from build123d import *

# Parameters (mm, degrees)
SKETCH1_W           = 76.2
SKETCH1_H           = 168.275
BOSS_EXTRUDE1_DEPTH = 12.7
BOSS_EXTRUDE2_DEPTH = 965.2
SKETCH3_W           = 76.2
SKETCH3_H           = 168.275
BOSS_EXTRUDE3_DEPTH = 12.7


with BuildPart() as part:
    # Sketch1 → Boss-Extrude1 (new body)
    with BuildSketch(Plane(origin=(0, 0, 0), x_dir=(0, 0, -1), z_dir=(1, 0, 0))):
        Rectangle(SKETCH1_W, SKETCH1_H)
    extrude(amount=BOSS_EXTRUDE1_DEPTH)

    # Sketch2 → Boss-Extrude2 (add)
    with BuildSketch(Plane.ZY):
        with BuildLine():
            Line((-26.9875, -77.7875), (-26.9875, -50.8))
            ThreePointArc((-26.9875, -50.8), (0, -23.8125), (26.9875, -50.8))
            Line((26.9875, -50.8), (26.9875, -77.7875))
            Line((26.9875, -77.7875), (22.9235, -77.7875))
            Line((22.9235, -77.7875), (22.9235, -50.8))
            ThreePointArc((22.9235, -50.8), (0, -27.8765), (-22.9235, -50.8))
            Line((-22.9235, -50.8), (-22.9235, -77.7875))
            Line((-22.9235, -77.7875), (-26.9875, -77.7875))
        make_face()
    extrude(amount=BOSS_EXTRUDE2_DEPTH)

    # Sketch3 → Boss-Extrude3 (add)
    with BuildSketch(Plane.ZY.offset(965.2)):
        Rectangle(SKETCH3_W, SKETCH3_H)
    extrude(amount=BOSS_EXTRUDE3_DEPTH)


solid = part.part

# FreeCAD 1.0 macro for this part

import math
import FreeCAD as App
import Part
import Sketcher
from FreeCAD import Vector
Q = App.Units.Quantity

doc = App.newDocument("Part")
params = doc.addObject("Spreadsheet::Sheet", "Params")
for row, (alias, value) in enumerate([
    ("sketch1_height", "3 in"),
    ("sketch1_width", "6.625 in"),
    ("pad1_length", "0.5 in"),
    ("sketch2_radius", "1.0625 in"),
    ("sketch2_height", "0.16 in"),
    ("sketch2_width", "1.0625 in"),
    ("pad2_length", "38 in"),
    ("sketch3_height", "3 in"),
    ("sketch3_width", "6.625 in"),
    ("pad3_length", "0.5 in"),
], start=1):
    params.set(f"A{row}", alias)
    params.set(f"B{row}", "=" + value)
    params.setAlias(f"B{row}", alias)

body = doc.addObject("PartDesign::Body", "Body")

# Sketch on YZ plane
sketch1 = doc.addObject("Sketcher::SketchObject", "Sketch")
body.addObject(sketch1)
sketch1.AttachmentSupport = (doc.YZ_Plane, [""])
sketch1.MapMode = "FlatFace"
sketch1.addGeometry([
    Part.LineSegment(Vector(84, 38, 0), Vector(-84, 38, 0)),
    Part.LineSegment(Vector(-84, 38, 0), Vector(-84, -38, 0)),
    Part.LineSegment(Vector(-84, -38, 0), Vector(84, -38, 0)),
    Part.LineSegment(Vector(84, -38, 0), Vector(84, 38, 0)),
], False)
sketch1.addConstraint([
    Sketcher.Constraint("Coincident", 0, 2, 1, 1),
    Sketcher.Constraint("Coincident", 1, 2, 2, 1),
    Sketcher.Constraint("Coincident", 2, 2, 3, 1),
    Sketcher.Constraint("Coincident", 3, 2, 0, 1),
    Sketcher.Constraint("Horizontal", 0),
    Sketcher.Constraint("Vertical", 1),
    Sketcher.Constraint("Horizontal", 2),
    Sketcher.Constraint("Vertical", 3),
    Sketcher.Constraint("Symmetric", 0, 2, 2, 2, -1, 1),
    Sketcher.Constraint("DistanceY", 1, 2, 1, 1, Q("3 in")),
    Sketcher.Constraint("DistanceX", 0, 2, 0, 1, Q("6.625 in")),
])
sketch1.setExpression("Constraints[9]", "Params.sketch1_height")
sketch1.setExpression("Constraints[10]", "Params.sketch1_width")
pad1 = doc.addObject("PartDesign::Pad", "Pad")
body.addObject(pad1)
pad1.Profile = sketch1
pad1.setExpression("Length", "Params.pad1_length")

# Sketch on YZ plane
sketch2 = doc.addObject("Sketcher::SketchObject", "Sketch001")
body.addObject(sketch2)
sketch2.AttachmentSupport = (doc.YZ_Plane, [""])
sketch2.MapMode = "FlatFace"
sketch2.addGeometry([
    Part.LineSegment(Vector(-50.8, -27, 0), Vector(-77.8, -27, 0)),  # 0
    Part.LineSegment(Vector(-77.8, -27, 0), Vector(-77.8, -22.9, 0)),  # 1
    Part.LineSegment(Vector(-77.8, -22.9, 0), Vector(-50.8, -22.9, 0)),  # 2
    Part.ArcOfCircle(Part.Circle(Vector(-50.8, 0, 0), Vector(0, 0, 1), 22.9), math.radians(-90), math.radians(90)),  # 3
    Part.LineSegment(Vector(-50.8, 22.9, 0), Vector(-77.8, 22.9, 0)),  # 4
    Part.LineSegment(Vector(-77.8, 22.9, 0), Vector(-77.8, 27, 0)),  # 5
    Part.LineSegment(Vector(-77.8, 27, 0), Vector(-50.8, 27, 0)),  # 6
    Part.ArcOfCircle(Part.Circle(Vector(-50.8, 0, 0), Vector(0, 0, 1), 27), math.radians(-90), math.radians(90)),  # 7
], False)
sketch2.addConstraint([
    Sketcher.Constraint("Coincident", 0, 2, 1, 1),
    Sketcher.Constraint("Coincident", 1, 2, 2, 1),
    Sketcher.Constraint("Tangent", 2, 2, 3, 1),
    Sketcher.Constraint("Tangent", 3, 2, 4, 1),
    Sketcher.Constraint("Coincident", 4, 2, 5, 1),
    Sketcher.Constraint("Coincident", 5, 2, 6, 1),
    Sketcher.Constraint("Tangent", 6, 2, 7, 2),
    Sketcher.Constraint("Tangent", 7, 1, 0, 1),
    Sketcher.Constraint("Horizontal", 0),
    Sketcher.Constraint("Vertical", 1),
    Sketcher.Constraint("Horizontal", 2),
    Sketcher.Constraint("Horizontal", 4),
    Sketcher.Constraint("Vertical", 5),
    Sketcher.Constraint("Horizontal", 6),
    Sketcher.Constraint("Coincident", 7, 3, 3, 3),
    Sketcher.Constraint("Symmetric", 1, 2, 4, 2, -1),
    Sketcher.Constraint("DistanceX", 3, 3, -1, 1, Q("2 in")),
    Sketcher.Constraint("Radius", 7, Q("1.0625 in")),
    Sketcher.Constraint("DistanceY", 1, 1, 1, 2, Q("0.16 in")),
    Sketcher.Constraint("DistanceX", 0, 2, 0, 1, Q("1.0625 in")),
])
sketch2.setExpression("Constraints[17]", "Params.sketch2_radius")
sketch2.setExpression("Constraints[18]", "Params.sketch2_height")
sketch2.setExpression("Constraints[19]", "Params.sketch2_width")
pad2 = doc.addObject("PartDesign::Pad", "Pad001")
body.addObject(pad2)
pad2.Profile = sketch2
pad2.setExpression("Length", "Params.pad2_length")
pad2.Reversed = True

# Sketch on YZ plane
sketch3 = doc.addObject("Sketcher::SketchObject", "Sketch002")
body.addObject(sketch3)
sketch3.AttachmentSupport = (doc.YZ_Plane, [""])
sketch3.MapMode = "FlatFace"
sketch3.AttachmentOffset = App.Placement(Vector(0, 0, -38 * 25.4), App.Rotation())
sketch3.addGeometry([
    Part.LineSegment(Vector(84, -38, 0), Vector(-84, -38, 0)),
    Part.LineSegment(Vector(-84, -38, 0), Vector(-84, 38, 0)),
    Part.LineSegment(Vector(-84, 38, 0), Vector(84, 38, 0)),
    Part.LineSegment(Vector(84, 38, 0), Vector(84, -38, 0)),
], False)
sketch3.addConstraint([
    Sketcher.Constraint("Coincident", 0, 2, 1, 1),
    Sketcher.Constraint("Coincident", 1, 2, 2, 1),
    Sketcher.Constraint("Coincident", 2, 2, 3, 1),
    Sketcher.Constraint("Coincident", 3, 2, 0, 1),
    Sketcher.Constraint("Horizontal", 0),
    Sketcher.Constraint("Vertical", 1),
    Sketcher.Constraint("Horizontal", 2),
    Sketcher.Constraint("Vertical", 3),
    Sketcher.Constraint("Symmetric", 0, 2, 2, 2, -1, 1),
    Sketcher.Constraint("DistanceY", 1, 1, 1, 2, Q("3 in")),
    Sketcher.Constraint("DistanceX", 0, 2, 0, 1, Q("6.625 in")),
])
sketch3.setExpression("Constraints[9]", "Params.sketch3_height")
sketch3.setExpression("Constraints[10]", "Params.sketch3_width")
pad3 = doc.addObject("PartDesign::Pad", "Pad002")
body.addObject(pad3)
pad3.Profile = sketch3
pad3.setExpression("Length", "Params.pad3_length")
pad3.Reversed = True

doc.recompute()
